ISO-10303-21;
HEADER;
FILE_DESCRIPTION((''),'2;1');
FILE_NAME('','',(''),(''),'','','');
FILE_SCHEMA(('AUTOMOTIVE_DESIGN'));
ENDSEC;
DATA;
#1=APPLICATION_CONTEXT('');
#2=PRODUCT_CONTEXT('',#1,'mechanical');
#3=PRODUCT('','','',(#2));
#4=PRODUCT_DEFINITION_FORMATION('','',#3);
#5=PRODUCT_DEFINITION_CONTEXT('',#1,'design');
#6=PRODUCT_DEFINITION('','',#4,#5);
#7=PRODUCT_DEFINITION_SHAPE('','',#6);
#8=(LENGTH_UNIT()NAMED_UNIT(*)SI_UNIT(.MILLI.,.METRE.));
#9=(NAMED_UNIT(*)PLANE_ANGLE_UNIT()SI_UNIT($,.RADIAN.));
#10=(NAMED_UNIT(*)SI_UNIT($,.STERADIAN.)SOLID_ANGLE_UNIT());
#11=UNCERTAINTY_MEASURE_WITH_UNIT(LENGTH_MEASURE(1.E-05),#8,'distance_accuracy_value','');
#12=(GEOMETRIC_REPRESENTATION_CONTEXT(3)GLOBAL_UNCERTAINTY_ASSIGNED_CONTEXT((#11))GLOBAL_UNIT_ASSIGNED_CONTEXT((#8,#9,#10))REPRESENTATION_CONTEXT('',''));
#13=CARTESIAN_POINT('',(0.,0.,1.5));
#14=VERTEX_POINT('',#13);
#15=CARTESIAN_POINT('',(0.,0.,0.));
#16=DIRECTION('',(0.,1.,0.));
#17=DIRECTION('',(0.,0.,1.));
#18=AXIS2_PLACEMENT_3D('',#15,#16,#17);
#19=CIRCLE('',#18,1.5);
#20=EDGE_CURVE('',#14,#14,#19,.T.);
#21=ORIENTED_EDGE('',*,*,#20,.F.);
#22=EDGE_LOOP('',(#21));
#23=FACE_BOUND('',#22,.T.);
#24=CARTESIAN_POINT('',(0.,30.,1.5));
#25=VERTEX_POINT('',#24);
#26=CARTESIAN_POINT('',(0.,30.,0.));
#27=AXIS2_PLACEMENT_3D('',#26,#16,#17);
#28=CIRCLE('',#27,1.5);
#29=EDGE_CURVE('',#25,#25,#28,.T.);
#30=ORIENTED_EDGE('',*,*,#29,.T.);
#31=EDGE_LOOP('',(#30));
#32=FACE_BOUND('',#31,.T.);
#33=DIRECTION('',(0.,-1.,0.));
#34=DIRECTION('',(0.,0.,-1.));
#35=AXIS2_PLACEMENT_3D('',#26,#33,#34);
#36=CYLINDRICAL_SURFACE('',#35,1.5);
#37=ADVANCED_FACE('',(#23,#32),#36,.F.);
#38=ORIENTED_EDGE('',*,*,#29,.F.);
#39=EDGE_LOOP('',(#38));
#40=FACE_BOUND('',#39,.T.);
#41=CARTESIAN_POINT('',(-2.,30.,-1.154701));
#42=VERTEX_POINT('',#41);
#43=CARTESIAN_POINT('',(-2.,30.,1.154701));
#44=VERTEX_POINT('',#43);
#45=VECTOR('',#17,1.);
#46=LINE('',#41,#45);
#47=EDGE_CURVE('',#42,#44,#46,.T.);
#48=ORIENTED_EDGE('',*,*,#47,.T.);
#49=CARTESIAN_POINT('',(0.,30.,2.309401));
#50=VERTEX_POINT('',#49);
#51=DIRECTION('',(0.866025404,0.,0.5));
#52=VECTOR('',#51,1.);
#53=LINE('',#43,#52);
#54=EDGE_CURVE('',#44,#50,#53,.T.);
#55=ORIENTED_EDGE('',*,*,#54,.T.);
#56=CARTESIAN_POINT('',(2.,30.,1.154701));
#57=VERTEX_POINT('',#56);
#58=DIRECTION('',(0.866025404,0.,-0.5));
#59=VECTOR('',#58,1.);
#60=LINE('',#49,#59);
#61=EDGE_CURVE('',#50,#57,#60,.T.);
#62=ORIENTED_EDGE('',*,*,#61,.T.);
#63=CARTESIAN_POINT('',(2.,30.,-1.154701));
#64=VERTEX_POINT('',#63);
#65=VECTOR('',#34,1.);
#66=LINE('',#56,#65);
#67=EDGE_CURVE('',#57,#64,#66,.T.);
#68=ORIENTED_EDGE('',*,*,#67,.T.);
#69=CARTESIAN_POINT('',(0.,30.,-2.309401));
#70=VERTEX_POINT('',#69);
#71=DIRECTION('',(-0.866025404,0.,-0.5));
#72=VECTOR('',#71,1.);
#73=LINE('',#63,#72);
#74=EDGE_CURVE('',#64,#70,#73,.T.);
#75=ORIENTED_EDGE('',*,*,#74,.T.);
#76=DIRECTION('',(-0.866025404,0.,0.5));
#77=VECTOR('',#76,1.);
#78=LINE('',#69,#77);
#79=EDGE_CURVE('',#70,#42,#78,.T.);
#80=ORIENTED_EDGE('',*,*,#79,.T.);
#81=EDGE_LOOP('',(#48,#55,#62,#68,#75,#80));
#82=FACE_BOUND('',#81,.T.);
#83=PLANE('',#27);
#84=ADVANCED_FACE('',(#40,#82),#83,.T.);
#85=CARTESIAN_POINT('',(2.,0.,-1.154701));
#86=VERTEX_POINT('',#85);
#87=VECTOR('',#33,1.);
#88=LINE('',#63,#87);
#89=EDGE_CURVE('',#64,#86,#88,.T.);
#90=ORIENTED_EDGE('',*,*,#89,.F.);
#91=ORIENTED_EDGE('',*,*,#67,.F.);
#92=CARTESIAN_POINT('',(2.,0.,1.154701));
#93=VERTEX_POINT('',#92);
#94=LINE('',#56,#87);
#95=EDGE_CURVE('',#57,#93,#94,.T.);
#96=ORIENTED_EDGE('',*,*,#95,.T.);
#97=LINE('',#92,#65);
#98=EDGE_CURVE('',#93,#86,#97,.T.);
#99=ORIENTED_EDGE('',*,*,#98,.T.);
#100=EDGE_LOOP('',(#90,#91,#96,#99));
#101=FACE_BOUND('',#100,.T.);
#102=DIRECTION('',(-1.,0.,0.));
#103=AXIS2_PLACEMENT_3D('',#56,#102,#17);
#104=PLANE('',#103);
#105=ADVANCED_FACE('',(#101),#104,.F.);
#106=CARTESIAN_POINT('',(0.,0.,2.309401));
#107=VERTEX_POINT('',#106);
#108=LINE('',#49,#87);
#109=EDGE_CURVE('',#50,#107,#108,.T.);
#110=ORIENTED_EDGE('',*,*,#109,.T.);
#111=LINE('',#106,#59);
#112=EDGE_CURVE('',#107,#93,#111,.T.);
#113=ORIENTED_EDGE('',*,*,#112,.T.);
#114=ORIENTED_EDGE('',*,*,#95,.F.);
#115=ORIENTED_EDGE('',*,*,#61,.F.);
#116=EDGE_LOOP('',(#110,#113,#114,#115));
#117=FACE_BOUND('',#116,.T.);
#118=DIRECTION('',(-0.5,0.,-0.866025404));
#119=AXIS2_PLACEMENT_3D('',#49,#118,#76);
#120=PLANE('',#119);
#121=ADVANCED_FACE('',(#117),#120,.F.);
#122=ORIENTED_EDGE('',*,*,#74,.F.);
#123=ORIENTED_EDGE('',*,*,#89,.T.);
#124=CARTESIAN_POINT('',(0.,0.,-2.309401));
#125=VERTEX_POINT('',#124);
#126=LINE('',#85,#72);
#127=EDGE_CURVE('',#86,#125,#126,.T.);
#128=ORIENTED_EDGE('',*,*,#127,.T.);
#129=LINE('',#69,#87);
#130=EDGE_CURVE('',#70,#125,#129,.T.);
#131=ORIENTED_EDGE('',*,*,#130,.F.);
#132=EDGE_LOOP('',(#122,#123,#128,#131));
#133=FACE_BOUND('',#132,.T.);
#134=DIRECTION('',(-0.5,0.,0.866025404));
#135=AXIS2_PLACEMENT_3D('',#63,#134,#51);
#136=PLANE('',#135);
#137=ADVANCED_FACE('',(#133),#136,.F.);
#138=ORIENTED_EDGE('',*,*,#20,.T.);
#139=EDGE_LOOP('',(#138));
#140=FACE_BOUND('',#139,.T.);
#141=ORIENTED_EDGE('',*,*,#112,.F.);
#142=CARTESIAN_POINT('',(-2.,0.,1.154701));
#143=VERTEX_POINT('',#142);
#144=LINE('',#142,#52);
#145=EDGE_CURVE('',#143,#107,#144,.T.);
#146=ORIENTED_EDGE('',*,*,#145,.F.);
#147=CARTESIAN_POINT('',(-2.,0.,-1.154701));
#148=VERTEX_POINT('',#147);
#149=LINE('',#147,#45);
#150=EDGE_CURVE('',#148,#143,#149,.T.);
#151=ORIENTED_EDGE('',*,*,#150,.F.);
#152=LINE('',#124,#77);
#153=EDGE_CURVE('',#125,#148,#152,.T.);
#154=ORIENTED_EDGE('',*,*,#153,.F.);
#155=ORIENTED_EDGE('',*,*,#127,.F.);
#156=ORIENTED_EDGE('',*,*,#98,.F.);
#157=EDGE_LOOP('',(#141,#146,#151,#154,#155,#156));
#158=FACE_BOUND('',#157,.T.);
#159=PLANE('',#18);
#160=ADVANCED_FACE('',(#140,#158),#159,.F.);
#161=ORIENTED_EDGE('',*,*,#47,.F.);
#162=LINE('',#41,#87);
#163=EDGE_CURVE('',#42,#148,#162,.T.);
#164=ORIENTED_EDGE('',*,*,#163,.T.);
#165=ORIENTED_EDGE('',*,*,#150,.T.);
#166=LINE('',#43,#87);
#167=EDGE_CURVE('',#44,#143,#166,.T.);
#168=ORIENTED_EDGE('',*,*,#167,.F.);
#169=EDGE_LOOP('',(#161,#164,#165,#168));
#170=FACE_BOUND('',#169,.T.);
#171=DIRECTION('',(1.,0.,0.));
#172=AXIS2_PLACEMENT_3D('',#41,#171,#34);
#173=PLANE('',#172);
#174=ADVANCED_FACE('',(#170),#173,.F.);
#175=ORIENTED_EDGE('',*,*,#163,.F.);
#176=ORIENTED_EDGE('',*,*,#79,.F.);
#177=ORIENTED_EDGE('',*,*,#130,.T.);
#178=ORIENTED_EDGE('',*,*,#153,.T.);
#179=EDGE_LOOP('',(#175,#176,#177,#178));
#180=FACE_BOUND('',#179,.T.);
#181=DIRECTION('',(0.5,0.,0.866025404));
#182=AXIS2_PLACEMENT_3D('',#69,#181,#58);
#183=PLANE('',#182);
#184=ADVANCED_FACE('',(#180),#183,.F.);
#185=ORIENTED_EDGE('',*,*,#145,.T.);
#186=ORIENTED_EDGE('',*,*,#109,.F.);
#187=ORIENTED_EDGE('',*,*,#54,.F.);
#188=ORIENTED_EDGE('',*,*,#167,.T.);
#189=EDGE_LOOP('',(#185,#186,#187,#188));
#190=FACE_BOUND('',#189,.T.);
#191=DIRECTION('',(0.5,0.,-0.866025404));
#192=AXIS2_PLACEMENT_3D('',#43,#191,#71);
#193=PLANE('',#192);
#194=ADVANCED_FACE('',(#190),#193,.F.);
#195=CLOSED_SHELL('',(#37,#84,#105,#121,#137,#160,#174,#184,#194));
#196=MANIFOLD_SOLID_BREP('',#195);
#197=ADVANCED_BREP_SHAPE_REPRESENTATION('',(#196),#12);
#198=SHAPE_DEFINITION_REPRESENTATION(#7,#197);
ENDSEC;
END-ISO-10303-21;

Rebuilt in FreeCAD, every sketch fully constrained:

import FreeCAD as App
import Part
import Sketcher

V = App.Vector
Q = App.Units.Quantity

doc = App.newDocument("Part")
params = doc.addObject("Spreadsheet::Sheet", "Params")
for row, (alias, value) in enumerate([
    ("sketch1_diameter", "3 mm"),
    ("pad1_length", "30 mm"),
], start=1):
    params.set(f"A{row}", alias)
    params.set(f"B{row}", "=" + value)
    params.setAlias(f"B{row}", alias)

body = doc.addObject("PartDesign::Body", "Body")

sketch1 = body.newObject("Sketcher::SketchObject", "Sketch")
sketch1.AttachmentSupport = (doc.getObject("XZ_Plane"), [""])
sketch1.MapMode = "FlatFace"
sketch1.addGeometry(Part.LineSegment(V(0, -2.309401, 0), V(-2, -1.154701, 0)), False)
sketch1.addGeometry(Part.LineSegment(V(-2, -1.154701, 0), V(-2, 1.154701, 0)), False)
sketch1.addGeometry(Part.LineSegment(V(-2, 1.154701, 0), V(0, 2.309401, 0)), False)
sketch1.addGeometry(Part.LineSegment(V(0, 2.309401, 0), V(2, 1.154701, 0)), False)
sketch1.addGeometry(Part.LineSegment(V(2, 1.154701, 0), V(2, -1.154701, 0)), False)
sketch1.addGeometry(Part.LineSegment(V(2, -1.154701, 0), V(0, -2.309401, 0)), False)
sketch1.addGeometry(Part.Circle(V(0, 0, 0), V(0, 0, 1), 1.5), False)
sketch1.addConstraint(Sketcher.Constraint("Coincident", 0, 2, 1, 1))
sketch1.addConstraint(Sketcher.Constraint("Coincident", 1, 2, 2, 1))
sketch1.addConstraint(Sketcher.Constraint("Coincident", 2, 2, 3, 1))
sketch1.addConstraint(Sketcher.Constraint("Coincident", 3, 2, 4, 1))
sketch1.addConstraint(Sketcher.Constraint("Coincident", 4, 2, 5, 1))
sketch1.addConstraint(Sketcher.Constraint("Coincident", 5, 2, 0, 1))
sketch1.addConstraint(Sketcher.Constraint("Vertical", 1))
sketch1.addConstraint(Sketcher.Constraint("Vertical", 4))
sketch1.addConstraint(Sketcher.Constraint("Coincident", 6, 3, -1, 1))
sketch1.addConstraint(Sketcher.Constraint("Symmetric", 0, 2, 3, 2, -1, 1))
sketch1.addConstraint(Sketcher.Constraint("Symmetric", 2, 2, 5, 2, -1, 1))
sketch1.addConstraint(Sketcher.Constraint("PointOnObject", 2, 2, -2))
sketch1.addConstraint(Sketcher.Constraint("Parallel", 2, 5))
sketch1.addConstraint(Sketcher.Constraint("Horizontal", 1, 2, 3, 2))
sketch1.addConstraint(Sketcher.Constraint("Diameter", 6, Q("3 mm")))
sketch1.addConstraint(Sketcher.Constraint("Angle", 0, Q("150 deg")))
sketch1.addConstraint(Sketcher.Constraint("DistanceX", 0, 2, -1, 1, Q("2 mm")))
sketch1.addConstraint(Sketcher.Constraint("DistanceY", 1, 1, 1, 2, Q("2.309401 mm")))
sketch1.setExpression("Constraints[14]", "Params.sketch1_diameter")
pad1 = body.newObject("PartDesign::Pad", "Pad")
pad1.Profile = sketch1
pad1.setExpression("Length", "Params.pad1_length")
pad1.Reversed = True

doc.recompute()
